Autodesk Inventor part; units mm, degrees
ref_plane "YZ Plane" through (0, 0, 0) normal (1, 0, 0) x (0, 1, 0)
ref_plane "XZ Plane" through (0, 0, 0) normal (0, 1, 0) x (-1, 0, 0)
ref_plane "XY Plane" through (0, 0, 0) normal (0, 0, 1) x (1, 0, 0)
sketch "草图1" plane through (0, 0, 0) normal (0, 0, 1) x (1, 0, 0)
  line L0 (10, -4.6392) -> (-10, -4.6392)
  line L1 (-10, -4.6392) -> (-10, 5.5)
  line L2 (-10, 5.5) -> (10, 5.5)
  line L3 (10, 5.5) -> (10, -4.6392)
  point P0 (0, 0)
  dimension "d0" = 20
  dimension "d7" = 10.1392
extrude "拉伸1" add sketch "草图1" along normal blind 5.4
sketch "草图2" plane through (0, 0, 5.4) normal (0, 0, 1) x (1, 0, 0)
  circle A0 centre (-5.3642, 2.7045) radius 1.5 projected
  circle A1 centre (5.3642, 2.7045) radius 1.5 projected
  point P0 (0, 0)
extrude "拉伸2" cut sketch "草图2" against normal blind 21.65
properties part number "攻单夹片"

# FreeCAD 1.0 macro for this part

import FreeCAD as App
import Part
import Sketcher

V = App.Vector


def add_polygon(sketch, points):
    """Adds a closed chain of lines whose ends are joined by coincident constraints."""
    first, n = sketch.GeometryCount, len(points)
    for a, b in zip(points, points[1:] + points[:1]):
        sketch.addGeometry(Part.LineSegment(App.Vector(*a, 0), App.Vector(*b, 0)), False)
    for i in range(n):
        sketch.addConstraint(Sketcher.Constraint("Coincident", first + i, 2, first + (i + 1) % n, 1))

doc = App.newDocument("Part")
body = doc.addObject("PartDesign::Body", "Body")

# Sketch on XY plane
sketch1 = body.newObject("Sketcher::SketchObject", "Sketch")
sketch1.AttachmentSupport = (doc.getObject("XY_Plane"), [""])
sketch1.MapMode = "FlatFace"
add_polygon(sketch1, [(-10, -5), (10, -5), (10, 6), (-10, 6)])  # lines 0-3
sketch1.addConstraint([
    Sketcher.Constraint("Horizontal", 0),
    Sketcher.Constraint("Vertical", 1),
    Sketcher.Constraint("Horizontal", 2),
    Sketcher.Constraint("Vertical", 3),
    Sketcher.Constraint("DistanceX", 0, 1, 0, 2, 20.0),
    Sketcher.Constraint("DistanceY", 1, 1, 1, 2, 10.1392),
    Sketcher.Constraint("DistanceX", -1, 1, 0, 2, 10.0),
    Sketcher.Constraint("DistanceY", -1, 1, 1, 2, 5.5),
])
pad1 = body.newObject("PartDesign::Pad", "Pad")
pad1.Profile = sketch1
pad1.Length = 5.4

# Sketch on XY plane
sketch2 = body.newObject("Sketcher::SketchObject", "Sketch001")
sketch2.AttachmentSupport = (doc.getObject("XY_Plane"), [""])
sketch2.MapMode = "FlatFace"
sketch2.AttachmentOffset = App.Placement(V(0, 0, 5.4), App.Rotation())
sketch2.addGeometry([
    Part.Circle(V(-5.4, 2.7, 0), V(0, 0, 1), 1.5),
    Part.Circle(V(5.4, 2.7, 0), V(0, 0, 1), 1.5),
], False)
sketch2.addConstraint([
    Sketcher.Constraint("Equal", 0, 1),
    Sketcher.Constraint("Symmetric", 0, 3, 1, 3, -2),
    Sketcher.Constraint("Diameter", 0, 3.0),
    Sketcher.Constraint("DistanceX", 0, 3, -1, 1, 5.3642),
    Sketcher.Constraint("DistanceY", -1, 1, 0, 3, 2.7045),
])
pocket1 = body.newObject("PartDesign::Pocket", "Pocket")
pocket1.Profile = sketch2
pocket1.Length = 21.65

doc.recompute()
